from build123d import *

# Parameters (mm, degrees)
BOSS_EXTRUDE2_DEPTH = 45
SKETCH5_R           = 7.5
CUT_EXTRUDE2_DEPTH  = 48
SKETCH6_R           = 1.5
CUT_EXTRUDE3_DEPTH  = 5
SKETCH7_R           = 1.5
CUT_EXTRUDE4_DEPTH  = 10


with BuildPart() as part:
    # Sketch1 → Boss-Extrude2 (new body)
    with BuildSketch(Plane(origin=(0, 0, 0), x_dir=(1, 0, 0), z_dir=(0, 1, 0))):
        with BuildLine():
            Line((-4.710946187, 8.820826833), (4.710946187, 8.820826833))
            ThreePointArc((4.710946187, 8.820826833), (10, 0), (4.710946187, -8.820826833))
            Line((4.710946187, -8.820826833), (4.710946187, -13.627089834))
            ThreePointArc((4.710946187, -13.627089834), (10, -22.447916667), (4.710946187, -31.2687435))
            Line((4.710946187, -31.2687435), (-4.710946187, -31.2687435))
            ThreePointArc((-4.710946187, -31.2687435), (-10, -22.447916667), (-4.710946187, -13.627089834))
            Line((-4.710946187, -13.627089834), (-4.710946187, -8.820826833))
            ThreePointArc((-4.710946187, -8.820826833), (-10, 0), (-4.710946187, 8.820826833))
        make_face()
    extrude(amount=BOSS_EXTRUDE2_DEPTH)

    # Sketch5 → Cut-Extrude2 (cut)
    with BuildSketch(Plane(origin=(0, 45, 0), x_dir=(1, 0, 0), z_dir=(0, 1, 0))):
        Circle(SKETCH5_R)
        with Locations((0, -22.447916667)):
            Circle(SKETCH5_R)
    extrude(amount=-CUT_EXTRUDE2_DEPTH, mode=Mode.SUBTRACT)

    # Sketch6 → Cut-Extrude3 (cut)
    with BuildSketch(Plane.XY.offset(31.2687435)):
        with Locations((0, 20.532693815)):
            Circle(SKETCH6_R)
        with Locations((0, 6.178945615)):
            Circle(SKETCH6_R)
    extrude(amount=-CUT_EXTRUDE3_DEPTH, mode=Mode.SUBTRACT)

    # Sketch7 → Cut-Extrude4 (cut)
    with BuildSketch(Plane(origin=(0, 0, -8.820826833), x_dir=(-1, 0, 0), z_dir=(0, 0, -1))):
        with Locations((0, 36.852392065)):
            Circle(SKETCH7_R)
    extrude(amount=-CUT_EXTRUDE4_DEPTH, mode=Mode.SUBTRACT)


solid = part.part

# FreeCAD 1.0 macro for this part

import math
import FreeCAD as App
import Part
import Sketcher
from FreeCAD import Vector

doc = App.newDocument("Part")
body = doc.addObject("PartDesign::Body", "Body")

sketch1 = body.newObject("Sketcher::SketchObject", "Sketch")
sketch1.AttachmentSupport = (doc.getObject("XZ_Plane"), [""])
sketch1.MapMode = "FlatFace"
sketch1.addGeometry([
    Part.LineSegment(Vector(4.7, -8.8, 0), Vector(-4.7, -8.8, 0)),
    Part.ArcOfCircle(Part.Circle(Vector(0, 0, 0), Vector(0, 0, 1), 10), math.radians(118), math.radians(242)),
    Part.LineSegment(Vector(-4.7, 8.8, 0), Vector(-4.7, 13.6, 0)),
    Part.ArcOfCircle(Part.Circle(Vector(0, 22.4, 0), Vector(0, 0, 1), 10), math.radians(118), math.radians(242)),
    Part.LineSegment(Vector(-4.7, 31.3, 0), Vector(4.7, 31.3, 0)),
    Part.ArcOfCircle(Part.Circle(Vector(0, 22.4, 0), Vector(0, 0, 1), 10), math.radians(-62), math.radians(62)),
    Part.LineSegment(Vector(4.7, 13.6, 0), Vector(4.7, 8.8, 0)),
    Part.ArcOfCircle(Part.Circle(Vector(0, 0, 0), Vector(0, 0, 1), 10), math.radians(-62), math.radians(62)),
], False)
sketch1.addConstraint([
    Sketcher.Constraint("Coincident", 0, 2, 1, 2),
    Sketcher.Constraint("Coincident", 1, 1, 2, 1),
    Sketcher.Constraint("Coincident", 2, 2, 3, 2),
    Sketcher.Constraint("Coincident", 3, 1, 4, 1),
    Sketcher.Constraint("Coincident", 4, 2, 5, 2),
    Sketcher.Constraint("Coincident", 5, 1, 6, 1),
    Sketcher.Constraint("Coincident", 6, 2, 7, 2),
    Sketcher.Constraint("Coincident", 7, 1, 0, 1),
    Sketcher.Constraint("Horizontal", 0),
    Sketcher.Constraint("Vertical", 2),
    Sketcher.Constraint("Horizontal", 4),
    Sketcher.Constraint("Vertical", 6),
    Sketcher.Constraint("Coincident", 1, 3, -1, 1),
    Sketcher.Constraint("Coincident", 7, 3, -1, 1),
    Sketcher.Constraint("Coincident", 5, 3, 3, 3),
    Sketcher.Constraint("Equal", 1, 3),
    Sketcher.Constraint("Equal", 3, 5),
    Sketcher.Constraint("Equal", 5, 7),
    Sketcher.Constraint("Symmetric", 2, 2, 5, 1, -2),
    Sketcher.Constraint("Vertical", 0, 2, 1, 1),
    Sketcher.Constraint("Vertical", 2, 2, 3, 1),
    Sketcher.Constraint("Radius", 1, 10.0),
    Sketcher.Constraint("DistanceX", 0, 2, 0, 1, 9.421892),
    Sketcher.Constraint("DistanceY", 2, 1, 2, 2, 4.806263),
])
pad1 = body.newObject("PartDesign::Pad", "Pad")
pad1.Profile = sketch1
pad1.Length = 45
pad1.Reversed = True

sketch2 = body.newObject("Sketcher::SketchObject", "Sketch001")
sketch2.AttachmentSupport = (doc.getObject("XZ_Plane"), [""])
sketch2.MapMode = "FlatFace"
sketch2.AttachmentOffset = App.Placement(Vector(0, 0, -45), App.Rotation())
sketch2.addGeometry([
    Part.Circle(Vector(0, 0, 0), Vector(0, 0, 1), 8),
    Part.Circle(Vector(0, 22, 0), Vector(0, 0, 1), 8),
], False)
sketch2.addConstraint([
    Sketcher.Constraint("Coincident", 0, 3, -1, 1),
    Sketcher.Constraint("Equal", 0, 1),
    Sketcher.Constraint("PointOnObject", 1, 3, -2),
    Sketcher.Constraint("Diameter", 0, 15.0),
    Sketcher.Constraint("DistanceY", -1, 1, 1, 3, 22.447917),
])
pocket1 = body.newObject("PartDesign::Pocket", "Pocket")
pocket1.Profile = sketch2
pocket1.Length = 48
pocket1.Reversed = True

sketch3 = body.newObject("Sketcher::SketchObject", "Sketch002")
sketch3.AttachmentSupport = (doc.getObject("XY_Plane"), [""])
sketch3.MapMode = "FlatFace"
sketch3.AttachmentOffset = App.Placement(Vector(0, 0, 31.268743), App.Rotation())
sketch3.addGeometry([
    Part.Circle(Vector(0, 20.5, 0), Vector(0, 0, 1), 1.5),
    Part.Circle(Vector(0, 6.2, 0), Vector(0, 0, 1), 1.5),
], False)
sketch3.addConstraint([
    Sketcher.Constraint("Equal", 0, 1),
    Sketcher.Constraint("PointOnObject", 0, 3, -2),
    Sketcher.Constraint("PointOnObject", 1, 3, -2),
    Sketcher.Constraint("Diameter", 0, 3.0),
    Sketcher.Constraint("DistanceY", 1, 3, 0, 3, 14.353748),
    Sketcher.Constraint("DistanceY", -1, 1, 0, 3, 20.532694),
])
pocket2 = body.newObject("PartDesign::Pocket", "Pocket001")
pocket2.Profile = sketch3
pocket2.Length = 5

sketch4 = body.newObject("Sketcher::SketchObject", "Sketch003")
sketch4.AttachmentSupport = (doc.getObject("XY_Plane"), [""])
sketch4.MapMode = "FlatFace"
sketch4.AttachmentOffset = App.Placement(Vector(0, 0, -8.820827), App.Rotation())
sketch4.addGeometry(Part.Circle(Vector(0, 36.9, 0), Vector(0, 0, 1), 1.5), False)
sketch4.addConstraint([
    Sketcher.Constraint("PointOnObject", 0, 3, -2),
    Sketcher.Constraint("Diameter", 0, 3.0),
    Sketcher.Constraint("DistanceY", -1, 1, 0, 3, 36.852392),
])
pocket3 = body.newObject("PartDesign::Pocket", "Pocket002")
pocket3.Profile = sketch4
pocket3.Length = 10
pocket3.Reversed = True

doc.recompute()
